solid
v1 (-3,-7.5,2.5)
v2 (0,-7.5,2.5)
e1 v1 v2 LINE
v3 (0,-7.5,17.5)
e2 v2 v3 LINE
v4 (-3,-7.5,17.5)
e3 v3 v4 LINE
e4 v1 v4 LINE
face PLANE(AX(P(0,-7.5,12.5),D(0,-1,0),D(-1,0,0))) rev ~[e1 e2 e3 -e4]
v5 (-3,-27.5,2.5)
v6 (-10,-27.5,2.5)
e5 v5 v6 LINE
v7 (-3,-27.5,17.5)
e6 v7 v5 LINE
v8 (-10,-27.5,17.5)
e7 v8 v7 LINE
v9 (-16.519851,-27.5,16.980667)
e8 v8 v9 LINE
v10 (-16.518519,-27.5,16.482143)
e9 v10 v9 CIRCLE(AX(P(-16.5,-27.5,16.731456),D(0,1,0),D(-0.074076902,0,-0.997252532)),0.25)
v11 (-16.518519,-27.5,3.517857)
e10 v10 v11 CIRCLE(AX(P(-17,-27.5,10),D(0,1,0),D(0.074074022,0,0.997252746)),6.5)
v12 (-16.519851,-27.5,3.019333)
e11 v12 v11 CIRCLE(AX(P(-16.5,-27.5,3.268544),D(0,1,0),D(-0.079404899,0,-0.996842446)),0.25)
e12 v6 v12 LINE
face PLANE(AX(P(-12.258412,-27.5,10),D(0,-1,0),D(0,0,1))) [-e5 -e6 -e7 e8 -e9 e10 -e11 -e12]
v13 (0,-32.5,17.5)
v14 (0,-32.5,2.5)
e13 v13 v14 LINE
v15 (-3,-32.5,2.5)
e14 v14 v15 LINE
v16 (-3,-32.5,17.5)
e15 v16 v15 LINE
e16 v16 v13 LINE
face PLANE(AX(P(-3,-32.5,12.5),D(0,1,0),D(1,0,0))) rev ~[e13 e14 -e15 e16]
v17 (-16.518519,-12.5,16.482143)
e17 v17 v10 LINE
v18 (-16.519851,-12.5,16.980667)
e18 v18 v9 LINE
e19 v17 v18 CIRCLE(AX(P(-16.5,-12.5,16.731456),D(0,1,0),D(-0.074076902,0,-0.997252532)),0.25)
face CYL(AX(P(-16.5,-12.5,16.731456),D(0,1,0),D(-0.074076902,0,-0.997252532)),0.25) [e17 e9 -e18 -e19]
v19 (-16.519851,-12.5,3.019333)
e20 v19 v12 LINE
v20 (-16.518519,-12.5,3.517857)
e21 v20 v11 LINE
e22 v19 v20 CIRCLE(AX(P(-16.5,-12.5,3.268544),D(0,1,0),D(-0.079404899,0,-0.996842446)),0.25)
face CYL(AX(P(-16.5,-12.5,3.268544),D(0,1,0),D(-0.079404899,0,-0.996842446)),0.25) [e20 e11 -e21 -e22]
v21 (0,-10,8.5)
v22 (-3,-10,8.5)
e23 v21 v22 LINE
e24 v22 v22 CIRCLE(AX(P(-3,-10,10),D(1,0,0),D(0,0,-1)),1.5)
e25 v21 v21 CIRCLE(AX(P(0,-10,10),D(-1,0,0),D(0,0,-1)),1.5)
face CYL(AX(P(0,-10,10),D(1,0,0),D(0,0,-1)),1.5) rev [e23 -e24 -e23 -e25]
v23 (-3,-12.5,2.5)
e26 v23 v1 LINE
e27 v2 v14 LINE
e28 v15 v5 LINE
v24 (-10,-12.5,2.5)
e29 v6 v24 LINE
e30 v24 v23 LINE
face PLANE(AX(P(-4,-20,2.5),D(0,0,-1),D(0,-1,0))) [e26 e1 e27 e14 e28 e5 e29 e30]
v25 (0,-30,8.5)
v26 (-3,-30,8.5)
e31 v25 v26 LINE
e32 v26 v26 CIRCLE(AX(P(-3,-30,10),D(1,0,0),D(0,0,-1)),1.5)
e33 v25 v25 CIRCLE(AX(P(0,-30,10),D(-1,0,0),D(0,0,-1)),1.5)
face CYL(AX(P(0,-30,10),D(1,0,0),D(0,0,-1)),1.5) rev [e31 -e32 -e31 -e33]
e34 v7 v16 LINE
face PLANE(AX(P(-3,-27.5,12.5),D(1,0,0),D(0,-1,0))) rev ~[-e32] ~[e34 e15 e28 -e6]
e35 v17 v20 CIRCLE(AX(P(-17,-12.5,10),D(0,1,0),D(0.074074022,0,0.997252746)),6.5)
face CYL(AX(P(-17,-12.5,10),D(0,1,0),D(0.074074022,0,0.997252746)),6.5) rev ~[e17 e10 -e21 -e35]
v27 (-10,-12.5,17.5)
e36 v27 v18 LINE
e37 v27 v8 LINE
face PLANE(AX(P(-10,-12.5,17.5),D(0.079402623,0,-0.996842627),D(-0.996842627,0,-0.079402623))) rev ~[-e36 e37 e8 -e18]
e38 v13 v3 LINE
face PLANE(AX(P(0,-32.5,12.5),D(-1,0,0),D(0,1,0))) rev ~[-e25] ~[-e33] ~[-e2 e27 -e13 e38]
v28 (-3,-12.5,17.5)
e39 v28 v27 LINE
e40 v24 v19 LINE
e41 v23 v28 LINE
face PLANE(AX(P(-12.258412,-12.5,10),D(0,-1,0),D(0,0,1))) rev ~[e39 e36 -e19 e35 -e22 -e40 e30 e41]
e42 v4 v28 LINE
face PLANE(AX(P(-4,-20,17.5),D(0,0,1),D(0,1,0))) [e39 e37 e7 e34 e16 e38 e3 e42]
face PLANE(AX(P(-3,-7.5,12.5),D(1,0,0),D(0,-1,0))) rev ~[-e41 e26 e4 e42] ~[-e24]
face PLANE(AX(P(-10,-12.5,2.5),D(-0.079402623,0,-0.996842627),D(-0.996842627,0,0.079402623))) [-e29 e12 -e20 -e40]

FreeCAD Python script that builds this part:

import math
import FreeCAD as App
import Part
import Sketcher

doc = App.newDocument("Part")
params = doc.addObject("Spreadsheet::Sheet", "Params")
for row, (alias, value) in enumerate([
    ("sketch1_diameter", "3 mm"),
    ("sketch1_width", "25 mm"),
    ("sketch1_height", "5 mm"),
    ("pad1_length", "10 mm"),
    ("sketch2_width", "5 mm"),
    ("pocket1_length", "7 mm"),
    ("sketch3_width", "3 mm"),
    ("sketch3_width2", "7 mm"),
    ("sketch3_height", "25 mm"),
    ("sketch3_height2", "5 mm"),
    ("pad2_length", "5 mm"),
    ("sketch4_width", "3 mm"),
    ("sketch4_width2", "7 mm"),
    ("sketch4_height", "25 mm"),
    ("sketch4_height2", "5 mm"),
    ("pad3_length", "5 mm"),
    ("sketch5_radius", "6.5 mm"),
    ("sketch5_height", "15 mm"),
    ("sketch5_radius2", "0.25 mm"),
    ("pad4_length", "15 mm"),
], start=1):
    params.set(f"A{row}", alias)
    params.set(f"B{row}", "=" + value)
    params.setAlias(f"B{row}", alias)

body = doc.addObject("PartDesign::Body", "Body")

sketch1 = body.newObject("Sketcher::SketchObject", "Sketch")
sketch1.AttachmentSupport = (doc.getObject("YZ_Plane"), [""])
sketch1.MapMode = "FlatFace"
sketch1.addGeometry([
    Part.LineSegment(App.Vector(-32.5, 12.5, 0), App.Vector(-7.5, 12.5, 0)),
    Part.LineSegment(App.Vector(-7.5, 12.5, 0), App.Vector(-7.5, 7.5, 0)),
    Part.LineSegment(App.Vector(-7.5, 7.5, 0), App.Vector(-32.5, 7.5, 0)),
    Part.LineSegment(App.Vector(-32.5, 7.5, 0), App.Vector(-32.5, 12.5, 0)),
    Part.Circle(App.Vector(-10, 10, 0), App.Vector(0, 0, 1), 1.5),
    Part.Circle(App.Vector(-30, 10, 0), App.Vector(0, 0, 1), 1.5),
], False)
sketch1.addConstraint([
    Sketcher.Constraint("Coincident", 0, 2, 1, 1),
    Sketcher.Constraint("Coincident", 1, 2, 2, 1),
    Sketcher.Constraint("Coincident", 2, 2, 3, 1),
    Sketcher.Constraint("Coincident", 3, 2, 0, 1),
    Sketcher.Constraint("Horizontal", 0),
    Sketcher.Constraint("Vertical", 1),
    Sketcher.Constraint("Horizontal", 2),
    Sketcher.Constraint("Vertical", 3),
    Sketcher.Constraint("Equal", 4, 5),
    Sketcher.Constraint("Horizontal", 4, 3, 5, 3),
    Sketcher.Constraint("Diameter", 4, 3.0),
    Sketcher.Constraint("DistanceX", 0, 1, 0, 2, 25.0),
    Sketcher.Constraint("DistanceY", 1, 2, 1, 1, 5.0),
    Sketcher.Constraint("DistanceX", 4, 3, -1, 1, 10.0),
    Sketcher.Constraint("DistanceY", -1, 1, 4, 3, 10.0),
    Sketcher.Constraint("DistanceX", 5, 3, -1, 1, 30.0),
    Sketcher.Constraint("DistanceX", 0, 2, -1, 1, 7.5),
    Sketcher.Constraint("DistanceY", -1, 1, 0, 2, 12.5),
])
sketch1.setExpression("Constraints[10]", "Params.sketch1_diameter")
sketch1.setExpression("Constraints[11]", "Params.sketch1_width")
sketch1.setExpression("Constraints[12]", "Params.sketch1_height")
pad1 = body.newObject("PartDesign::Pad", "Pad")
pad1.Profile = sketch1
pad1.setExpression("Length", "Params.pad1_length")
pad1.Reversed = True

sketch2 = body.newObject("Sketcher::SketchObject", "Sketch001")
sketch2.AttachmentSupport = (doc.getObject("YZ_Plane"), [""])
sketch2.MapMode = "FlatFace"
sketch2.AttachmentOffset = App.Placement(App.Vector(0, 0, -10), App.Rotation())
sketch2.addGeometry([
    Part.LineSegment(App.Vector(-32, 12, 0), App.Vector(-28, 12, 0)),
    Part.LineSegment(App.Vector(-28, 12, 0), App.Vector(-28, 8, 0)),
    Part.LineSegment(App.Vector(-28, 8, 0), App.Vector(-32, 8, 0)),
    Part.LineSegment(App.Vector(-32, 8, 0), App.Vector(-32, 12, 0)),
    Part.LineSegment(App.Vector(-12, 12, 0), App.Vector(-8, 12, 0)),
    Part.LineSegment(App.Vector(-8, 12, 0), App.Vector(-8, 8, 0)),
    Part.LineSegment(App.Vector(-8, 8, 0), App.Vector(-12, 8, 0)),
    Part.LineSegment(App.Vector(-12, 8, 0), App.Vector(-12, 12, 0)),
], False)
sketch2.addConstraint([
    Sketcher.Constraint("Coincident", 0, 2, 1, 1),
    Sketcher.Constraint("Coincident", 1, 2, 2, 1),
    Sketcher.Constraint("Coincident", 2, 2, 3, 1),
    Sketcher.Constraint("Coincident", 3, 2, 0, 1),
    Sketcher.Constraint("Coincident", 4, 2, 5, 1),
    Sketcher.Constraint("Coincident", 5, 2, 6, 1),
    Sketcher.Constraint("Coincident", 6, 2, 7, 1),
    Sketcher.Constraint("Coincident", 7, 2, 4, 1),
    Sketcher.Constraint("Horizontal", 0),
    Sketcher.Constraint("Vertical", 1),
    Sketcher.Constraint("Horizontal", 2),
    Sketcher.Constraint("Vertical", 3),
    Sketcher.Constraint("Horizontal", 4),
    Sketcher.Constraint("Vertical", 5),
    Sketcher.Constraint("Horizontal", 6),
    Sketcher.Constraint("Vertical", 7),
    Sketcher.Constraint("Horizontal", 3, 2, 4, 2),
    Sketcher.Constraint("Horizontal", 2, 2, 5, 2),
    Sketcher.Constraint("Equal", 2, 4),
    Sketcher.Constraint("Equal", 6, 1),
    Sketcher.Constraint("DistanceX", 0, 1, 0, 2, 5.0),
    Sketcher.Constraint("DistanceX", 0, 2, 4, 2, 20.0),
    Sketcher.Constraint("DistanceX", 0, 2, -1, 1, 27.5),
    Sketcher.Constraint("DistanceY", -1, 1, 0, 2, 12.5),
])
sketch2.setExpression("Constraints[20]", "Params.sketch2_width")
pocket1 = body.newObject("PartDesign::Pocket", "Pocket")
pocket1.Profile = sketch2
pocket1.setExpression("Length", "Params.pocket1_length")
pocket1.Reversed = True

sketch3 = body.newObject("Sketcher::SketchObject", "Sketch002")
sketch3.AttachmentSupport = (doc.getObject("XY_Plane"), [""])
sketch3.MapMode = "FlatFace"
sketch3.AttachmentOffset = App.Placement(App.Vector(0, 0, 7.5), App.Rotation())
sketch3.addGeometry([
    Part.LineSegment(App.Vector(0, -7.5, 0), App.Vector(0, -32.5, 0)),
    Part.LineSegment(App.Vector(0, -32.5, 0), App.Vector(-3, -32.5, 0)),
    Part.LineSegment(App.Vector(-3, -32.5, 0), App.Vector(-3, -27.5, 0)),
    Part.LineSegment(App.Vector(-3, -27.5, 0), App.Vector(-10, -27.5, 0)),
    Part.LineSegment(App.Vector(-10, -27.5, 0), App.Vector(-10, -12.5, 0)),
    Part.LineSegment(App.Vector(-10, -12.5, 0), App.Vector(-3, -12.5, 0)),
    Part.LineSegment(App.Vector(-3, -12.5, 0), App.Vector(-3, -7.5, 0)),
    Part.LineSegment(App.Vector(-3, -7.5, 0), App.Vector(0, -7.5, 0)),
], False)
sketch3.addConstraint([
    Sketcher.Constraint("Coincident", 0, 2, 1, 1),
    Sketcher.Constraint("Coincident", 1, 2, 2, 1),
    Sketcher.Constraint("Coincident", 2, 2, 3, 1),
    Sketcher.Constraint("Coincident", 3, 2, 4, 1),
    Sketcher.Constraint("Coincident", 4, 2, 5, 1),
    Sketcher.Constraint("Coincident", 5, 2, 6, 1),
    Sketcher.Constraint("Coincident", 6, 2, 7, 1),
    Sketcher.Constraint("Coincident", 7, 2, 0, 1),
    Sketcher.Constraint("Vertical", 0),
    Sketcher.Constraint("Horizontal", 1),
    Sketcher.Constraint("Vertical", 2),
    Sketcher.Constraint("Horizontal", 3),
    Sketcher.Constraint("Vertical", 4),
    Sketcher.Constraint("Horizontal", 5),
    Sketcher.Constraint("Vertical", 6),
    Sketcher.Constraint("Horizontal", 7),
    Sketcher.Constraint("PointOnObject", 0, 2, -2),
    Sketcher.Constraint("Vertical", 2, 2, 5, 2),
    Sketcher.Constraint("Equal", 2, 6),
    Sketcher.Constraint("DistanceX", 1, 2, 1, 1, 3.0),
    Sketcher.Constraint("DistanceX", 3, 2, 3, 1, 7.0),
    Sketcher.Constraint("DistanceY", 0, 2, 0, 1, 25.0),
    Sketcher.Constraint("DistanceY", 2, 1, 2, 2, 5.0),
    Sketcher.Constraint("DistanceY", 0, 2, -1, 1, 32.5),
])
sketch3.setExpression("Constraints[19]", "Params.sketch3_width")
sketch3.setExpression("Constraints[20]", "Params.sketch3_width2")
sketch3.setExpression("Constraints[21]", "Params.sketch3_height")
sketch3.setExpression("Constraints[22]", "Params.sketch3_height2")
pad2 = body.newObject("PartDesign::Pad", "Pad001")
pad2.Profile = sketch3
pad2.setExpression("Length", "Params.pad2_length")
pad2.Reversed = True

sketch4 = body.newObject("Sketcher::SketchObject", "Sketch003")
sketch4.AttachmentSupport = (doc.getObject("XY_Plane"), [""])
sketch4.MapMode = "FlatFace"
sketch4.AttachmentOffset = App.Placement(App.Vector(0, 0, 12.5), App.Rotation())
sketch4.addGeometry([
    Part.LineSegment(App.Vector(0, -32.5, 0), App.Vector(0, -7.5, 0)),
    Part.LineSegment(App.Vector(0, -7.5, 0), App.Vector(-3, -7.5, 0)),
    Part.LineSegment(App.Vector(-3, -7.5, 0), App.Vector(-3, -12.5, 0)),
    Part.LineSegment(App.Vector(-3, -12.5, 0), App.Vector(-10, -12.5, 0)),
    Part.LineSegment(App.Vector(-10, -12.5, 0), App.Vector(-10, -27.5, 0)),
    Part.LineSegment(App.Vector(-10, -27.5, 0), App.Vector(-3, -27.5, 0)),
    Part.LineSegment(App.Vector(-3, -27.5, 0), App.Vector(-3, -32.5, 0)),
    Part.LineSegment(App.Vector(-3, -32.5, 0), App.Vector(0, -32.5, 0)),
], False)
sketch4.addConstraint([
    Sketcher.Constraint("Coincident", 0, 2, 1, 1),
    Sketcher.Constraint("Coincident", 1, 2, 2, 1),
    Sketcher.Constraint("Coincident", 2, 2, 3, 1),
    Sketcher.Constraint("Coincident", 3, 2, 4, 1),
    Sketcher.Constraint("Coincident", 4, 2, 5, 1),
    Sketcher.Constraint("Coincident", 5, 2, 6, 1),
    Sketcher.Constraint("Coincident", 6, 2, 7, 1),
    Sketcher.Constraint("Coincident", 7, 2, 0, 1),
    Sketcher.Constraint("Vertical", 0),
    Sketcher.Constraint("Horizontal", 1),
    Sketcher.Constraint("Vertical", 2),
    Sketcher.Constraint("Horizontal", 3),
    Sketcher.Constraint("Vertical", 4),
    Sketcher.Constraint("Horizontal", 5),
    Sketcher.Constraint("Vertical", 6),
    Sketcher.Constraint("Horizontal", 7),
    Sketcher.Constraint("PointOnObject", 0, 2, -2),
    Sketcher.Constraint("Vertical", 2, 2, 5, 2),
    Sketcher.Constraint("Equal", 2, 6),
    Sketcher.Constraint("DistanceX", 1, 2, 1, 1, 3.0),
    Sketcher.Constraint("DistanceX", 3, 2, 3, 1, 7.0),
    Sketcher.Constraint("DistanceY", 0, 1, 0, 2, 25.0),
    Sketcher.Constraint("DistanceY", 2, 2, 2, 1, 5.0),
    Sketcher.Constraint("DistanceY", 0, 2, -1, 1, 7.5),
])
sketch4.setExpression("Constraints[19]", "Params.sketch4_width")
sketch4.setExpression("Constraints[20]", "Params.sketch4_width2")
sketch4.setExpression("Constraints[21]", "Params.sketch4_height")
sketch4.setExpression("Constraints[22]", "Params.sketch4_height2")
pad3 = body.newObject("PartDesign::Pad", "Pad002")
pad3.Profile = sketch4
pad3.setExpression("Length", "Params.pad3_length")

sketch5 = body.newObject("Sketcher::SketchObject", "Sketch004")
sketch5.AttachmentSupport = (doc.getObject("XZ_Plane"), [""])
sketch5.MapMode = "FlatFace"
sketch5.AttachmentOffset = App.Placement(App.Vector(0, 0, 12.5), App.Rotation())
sketch5.addGeometry([
    Part.ArcOfCircle(Part.Circle(App.Vector(-17, 10, 0), App.Vector(0, 0, 1), 6.5), math.radians(-86), math.radians(86)),
    Part.ArcOfCircle(Part.Circle(App.Vector(-16.5, 16.73, 0), App.Vector(0, 0, 1), 0.25), math.radians(95), math.radians(266)),
    Part.LineSegment(App.Vector(-16.52, 16.98, 0), App.Vector(-10, 17.5, 0)),
    Part.LineSegment(App.Vector(-10, 17.5, 0), App.Vector(-10, 2.5, 0)),
    Part.LineSegment(App.Vector(-10, 2.5, 0), App.Vector(-16.52, 3.02, 0)),
    Part.ArcOfCircle(Part.Circle(App.Vector(-16.5, 3.27, 0), App.Vector(0, 0, 1), 0.25), math.radians(94), math.radians(265)),
], False)
sketch5.addConstraint([
    Sketcher.Constraint("Coincident", 0, 2, 1, 2),
    Sketcher.Constraint("Coincident", 1, 1, 2, 1),
    Sketcher.Constraint("Coincident", 2, 2, 3, 1),
    Sketcher.Constraint("Coincident", 3, 2, 4, 1),
    Sketcher.Constraint("Coincident", 4, 2, 5, 2),
    Sketcher.Constraint("Coincident", 5, 1, 0, 1),
    Sketcher.Constraint("Vertical", 3),
    Sketcher.Constraint("Equal", 1, 5),
    Sketcher.Constraint("Vertical", 1, 3, 5, 3),
    Sketcher.Constraint("Vertical", 1, 1, 4, 2),
    Sketcher.Constraint("Vertical", 0, 2, 5, 1),
    Sketcher.Constraint("Equal", 2, 4),
    Sketcher.Constraint("Radius", 0, 6.5),
    Sketcher.Constraint("DistanceY", 3, 2, 3, 1, 15.0),
    Sketcher.Constraint("Radius", 1, 0.25),
    Sketcher.Constraint("DistanceX", 0, 3, -1, 1, 17.0),
    Sketcher.Constraint("DistanceY", -1, 1, 0, 3, 10.0),
    Sketcher.Constraint("DistanceX", 2, 2, -1, 1, 10.0),
    Sketcher.Constraint("DistanceX", 1, 3, -1, 1, 16.5),
    Sketcher.Constraint("Distance", 2, 6.540502),
    Sketcher.Constraint("DistanceY", 5, 3, 0, 2, 13.213599),
])
sketch5.setExpression("Constraints[12]", "Params.sketch5_radius")
sketch5.setExpression("Constraints[13]", "Params.sketch5_height")
sketch5.setExpression("Constraints[14]", "Params.sketch5_radius2")
pad4 = body.newObject("PartDesign::Pad", "Pad003")
pad4.Profile = sketch5
pad4.setExpression("Length", "Params.pad4_length")

doc.recompute()
